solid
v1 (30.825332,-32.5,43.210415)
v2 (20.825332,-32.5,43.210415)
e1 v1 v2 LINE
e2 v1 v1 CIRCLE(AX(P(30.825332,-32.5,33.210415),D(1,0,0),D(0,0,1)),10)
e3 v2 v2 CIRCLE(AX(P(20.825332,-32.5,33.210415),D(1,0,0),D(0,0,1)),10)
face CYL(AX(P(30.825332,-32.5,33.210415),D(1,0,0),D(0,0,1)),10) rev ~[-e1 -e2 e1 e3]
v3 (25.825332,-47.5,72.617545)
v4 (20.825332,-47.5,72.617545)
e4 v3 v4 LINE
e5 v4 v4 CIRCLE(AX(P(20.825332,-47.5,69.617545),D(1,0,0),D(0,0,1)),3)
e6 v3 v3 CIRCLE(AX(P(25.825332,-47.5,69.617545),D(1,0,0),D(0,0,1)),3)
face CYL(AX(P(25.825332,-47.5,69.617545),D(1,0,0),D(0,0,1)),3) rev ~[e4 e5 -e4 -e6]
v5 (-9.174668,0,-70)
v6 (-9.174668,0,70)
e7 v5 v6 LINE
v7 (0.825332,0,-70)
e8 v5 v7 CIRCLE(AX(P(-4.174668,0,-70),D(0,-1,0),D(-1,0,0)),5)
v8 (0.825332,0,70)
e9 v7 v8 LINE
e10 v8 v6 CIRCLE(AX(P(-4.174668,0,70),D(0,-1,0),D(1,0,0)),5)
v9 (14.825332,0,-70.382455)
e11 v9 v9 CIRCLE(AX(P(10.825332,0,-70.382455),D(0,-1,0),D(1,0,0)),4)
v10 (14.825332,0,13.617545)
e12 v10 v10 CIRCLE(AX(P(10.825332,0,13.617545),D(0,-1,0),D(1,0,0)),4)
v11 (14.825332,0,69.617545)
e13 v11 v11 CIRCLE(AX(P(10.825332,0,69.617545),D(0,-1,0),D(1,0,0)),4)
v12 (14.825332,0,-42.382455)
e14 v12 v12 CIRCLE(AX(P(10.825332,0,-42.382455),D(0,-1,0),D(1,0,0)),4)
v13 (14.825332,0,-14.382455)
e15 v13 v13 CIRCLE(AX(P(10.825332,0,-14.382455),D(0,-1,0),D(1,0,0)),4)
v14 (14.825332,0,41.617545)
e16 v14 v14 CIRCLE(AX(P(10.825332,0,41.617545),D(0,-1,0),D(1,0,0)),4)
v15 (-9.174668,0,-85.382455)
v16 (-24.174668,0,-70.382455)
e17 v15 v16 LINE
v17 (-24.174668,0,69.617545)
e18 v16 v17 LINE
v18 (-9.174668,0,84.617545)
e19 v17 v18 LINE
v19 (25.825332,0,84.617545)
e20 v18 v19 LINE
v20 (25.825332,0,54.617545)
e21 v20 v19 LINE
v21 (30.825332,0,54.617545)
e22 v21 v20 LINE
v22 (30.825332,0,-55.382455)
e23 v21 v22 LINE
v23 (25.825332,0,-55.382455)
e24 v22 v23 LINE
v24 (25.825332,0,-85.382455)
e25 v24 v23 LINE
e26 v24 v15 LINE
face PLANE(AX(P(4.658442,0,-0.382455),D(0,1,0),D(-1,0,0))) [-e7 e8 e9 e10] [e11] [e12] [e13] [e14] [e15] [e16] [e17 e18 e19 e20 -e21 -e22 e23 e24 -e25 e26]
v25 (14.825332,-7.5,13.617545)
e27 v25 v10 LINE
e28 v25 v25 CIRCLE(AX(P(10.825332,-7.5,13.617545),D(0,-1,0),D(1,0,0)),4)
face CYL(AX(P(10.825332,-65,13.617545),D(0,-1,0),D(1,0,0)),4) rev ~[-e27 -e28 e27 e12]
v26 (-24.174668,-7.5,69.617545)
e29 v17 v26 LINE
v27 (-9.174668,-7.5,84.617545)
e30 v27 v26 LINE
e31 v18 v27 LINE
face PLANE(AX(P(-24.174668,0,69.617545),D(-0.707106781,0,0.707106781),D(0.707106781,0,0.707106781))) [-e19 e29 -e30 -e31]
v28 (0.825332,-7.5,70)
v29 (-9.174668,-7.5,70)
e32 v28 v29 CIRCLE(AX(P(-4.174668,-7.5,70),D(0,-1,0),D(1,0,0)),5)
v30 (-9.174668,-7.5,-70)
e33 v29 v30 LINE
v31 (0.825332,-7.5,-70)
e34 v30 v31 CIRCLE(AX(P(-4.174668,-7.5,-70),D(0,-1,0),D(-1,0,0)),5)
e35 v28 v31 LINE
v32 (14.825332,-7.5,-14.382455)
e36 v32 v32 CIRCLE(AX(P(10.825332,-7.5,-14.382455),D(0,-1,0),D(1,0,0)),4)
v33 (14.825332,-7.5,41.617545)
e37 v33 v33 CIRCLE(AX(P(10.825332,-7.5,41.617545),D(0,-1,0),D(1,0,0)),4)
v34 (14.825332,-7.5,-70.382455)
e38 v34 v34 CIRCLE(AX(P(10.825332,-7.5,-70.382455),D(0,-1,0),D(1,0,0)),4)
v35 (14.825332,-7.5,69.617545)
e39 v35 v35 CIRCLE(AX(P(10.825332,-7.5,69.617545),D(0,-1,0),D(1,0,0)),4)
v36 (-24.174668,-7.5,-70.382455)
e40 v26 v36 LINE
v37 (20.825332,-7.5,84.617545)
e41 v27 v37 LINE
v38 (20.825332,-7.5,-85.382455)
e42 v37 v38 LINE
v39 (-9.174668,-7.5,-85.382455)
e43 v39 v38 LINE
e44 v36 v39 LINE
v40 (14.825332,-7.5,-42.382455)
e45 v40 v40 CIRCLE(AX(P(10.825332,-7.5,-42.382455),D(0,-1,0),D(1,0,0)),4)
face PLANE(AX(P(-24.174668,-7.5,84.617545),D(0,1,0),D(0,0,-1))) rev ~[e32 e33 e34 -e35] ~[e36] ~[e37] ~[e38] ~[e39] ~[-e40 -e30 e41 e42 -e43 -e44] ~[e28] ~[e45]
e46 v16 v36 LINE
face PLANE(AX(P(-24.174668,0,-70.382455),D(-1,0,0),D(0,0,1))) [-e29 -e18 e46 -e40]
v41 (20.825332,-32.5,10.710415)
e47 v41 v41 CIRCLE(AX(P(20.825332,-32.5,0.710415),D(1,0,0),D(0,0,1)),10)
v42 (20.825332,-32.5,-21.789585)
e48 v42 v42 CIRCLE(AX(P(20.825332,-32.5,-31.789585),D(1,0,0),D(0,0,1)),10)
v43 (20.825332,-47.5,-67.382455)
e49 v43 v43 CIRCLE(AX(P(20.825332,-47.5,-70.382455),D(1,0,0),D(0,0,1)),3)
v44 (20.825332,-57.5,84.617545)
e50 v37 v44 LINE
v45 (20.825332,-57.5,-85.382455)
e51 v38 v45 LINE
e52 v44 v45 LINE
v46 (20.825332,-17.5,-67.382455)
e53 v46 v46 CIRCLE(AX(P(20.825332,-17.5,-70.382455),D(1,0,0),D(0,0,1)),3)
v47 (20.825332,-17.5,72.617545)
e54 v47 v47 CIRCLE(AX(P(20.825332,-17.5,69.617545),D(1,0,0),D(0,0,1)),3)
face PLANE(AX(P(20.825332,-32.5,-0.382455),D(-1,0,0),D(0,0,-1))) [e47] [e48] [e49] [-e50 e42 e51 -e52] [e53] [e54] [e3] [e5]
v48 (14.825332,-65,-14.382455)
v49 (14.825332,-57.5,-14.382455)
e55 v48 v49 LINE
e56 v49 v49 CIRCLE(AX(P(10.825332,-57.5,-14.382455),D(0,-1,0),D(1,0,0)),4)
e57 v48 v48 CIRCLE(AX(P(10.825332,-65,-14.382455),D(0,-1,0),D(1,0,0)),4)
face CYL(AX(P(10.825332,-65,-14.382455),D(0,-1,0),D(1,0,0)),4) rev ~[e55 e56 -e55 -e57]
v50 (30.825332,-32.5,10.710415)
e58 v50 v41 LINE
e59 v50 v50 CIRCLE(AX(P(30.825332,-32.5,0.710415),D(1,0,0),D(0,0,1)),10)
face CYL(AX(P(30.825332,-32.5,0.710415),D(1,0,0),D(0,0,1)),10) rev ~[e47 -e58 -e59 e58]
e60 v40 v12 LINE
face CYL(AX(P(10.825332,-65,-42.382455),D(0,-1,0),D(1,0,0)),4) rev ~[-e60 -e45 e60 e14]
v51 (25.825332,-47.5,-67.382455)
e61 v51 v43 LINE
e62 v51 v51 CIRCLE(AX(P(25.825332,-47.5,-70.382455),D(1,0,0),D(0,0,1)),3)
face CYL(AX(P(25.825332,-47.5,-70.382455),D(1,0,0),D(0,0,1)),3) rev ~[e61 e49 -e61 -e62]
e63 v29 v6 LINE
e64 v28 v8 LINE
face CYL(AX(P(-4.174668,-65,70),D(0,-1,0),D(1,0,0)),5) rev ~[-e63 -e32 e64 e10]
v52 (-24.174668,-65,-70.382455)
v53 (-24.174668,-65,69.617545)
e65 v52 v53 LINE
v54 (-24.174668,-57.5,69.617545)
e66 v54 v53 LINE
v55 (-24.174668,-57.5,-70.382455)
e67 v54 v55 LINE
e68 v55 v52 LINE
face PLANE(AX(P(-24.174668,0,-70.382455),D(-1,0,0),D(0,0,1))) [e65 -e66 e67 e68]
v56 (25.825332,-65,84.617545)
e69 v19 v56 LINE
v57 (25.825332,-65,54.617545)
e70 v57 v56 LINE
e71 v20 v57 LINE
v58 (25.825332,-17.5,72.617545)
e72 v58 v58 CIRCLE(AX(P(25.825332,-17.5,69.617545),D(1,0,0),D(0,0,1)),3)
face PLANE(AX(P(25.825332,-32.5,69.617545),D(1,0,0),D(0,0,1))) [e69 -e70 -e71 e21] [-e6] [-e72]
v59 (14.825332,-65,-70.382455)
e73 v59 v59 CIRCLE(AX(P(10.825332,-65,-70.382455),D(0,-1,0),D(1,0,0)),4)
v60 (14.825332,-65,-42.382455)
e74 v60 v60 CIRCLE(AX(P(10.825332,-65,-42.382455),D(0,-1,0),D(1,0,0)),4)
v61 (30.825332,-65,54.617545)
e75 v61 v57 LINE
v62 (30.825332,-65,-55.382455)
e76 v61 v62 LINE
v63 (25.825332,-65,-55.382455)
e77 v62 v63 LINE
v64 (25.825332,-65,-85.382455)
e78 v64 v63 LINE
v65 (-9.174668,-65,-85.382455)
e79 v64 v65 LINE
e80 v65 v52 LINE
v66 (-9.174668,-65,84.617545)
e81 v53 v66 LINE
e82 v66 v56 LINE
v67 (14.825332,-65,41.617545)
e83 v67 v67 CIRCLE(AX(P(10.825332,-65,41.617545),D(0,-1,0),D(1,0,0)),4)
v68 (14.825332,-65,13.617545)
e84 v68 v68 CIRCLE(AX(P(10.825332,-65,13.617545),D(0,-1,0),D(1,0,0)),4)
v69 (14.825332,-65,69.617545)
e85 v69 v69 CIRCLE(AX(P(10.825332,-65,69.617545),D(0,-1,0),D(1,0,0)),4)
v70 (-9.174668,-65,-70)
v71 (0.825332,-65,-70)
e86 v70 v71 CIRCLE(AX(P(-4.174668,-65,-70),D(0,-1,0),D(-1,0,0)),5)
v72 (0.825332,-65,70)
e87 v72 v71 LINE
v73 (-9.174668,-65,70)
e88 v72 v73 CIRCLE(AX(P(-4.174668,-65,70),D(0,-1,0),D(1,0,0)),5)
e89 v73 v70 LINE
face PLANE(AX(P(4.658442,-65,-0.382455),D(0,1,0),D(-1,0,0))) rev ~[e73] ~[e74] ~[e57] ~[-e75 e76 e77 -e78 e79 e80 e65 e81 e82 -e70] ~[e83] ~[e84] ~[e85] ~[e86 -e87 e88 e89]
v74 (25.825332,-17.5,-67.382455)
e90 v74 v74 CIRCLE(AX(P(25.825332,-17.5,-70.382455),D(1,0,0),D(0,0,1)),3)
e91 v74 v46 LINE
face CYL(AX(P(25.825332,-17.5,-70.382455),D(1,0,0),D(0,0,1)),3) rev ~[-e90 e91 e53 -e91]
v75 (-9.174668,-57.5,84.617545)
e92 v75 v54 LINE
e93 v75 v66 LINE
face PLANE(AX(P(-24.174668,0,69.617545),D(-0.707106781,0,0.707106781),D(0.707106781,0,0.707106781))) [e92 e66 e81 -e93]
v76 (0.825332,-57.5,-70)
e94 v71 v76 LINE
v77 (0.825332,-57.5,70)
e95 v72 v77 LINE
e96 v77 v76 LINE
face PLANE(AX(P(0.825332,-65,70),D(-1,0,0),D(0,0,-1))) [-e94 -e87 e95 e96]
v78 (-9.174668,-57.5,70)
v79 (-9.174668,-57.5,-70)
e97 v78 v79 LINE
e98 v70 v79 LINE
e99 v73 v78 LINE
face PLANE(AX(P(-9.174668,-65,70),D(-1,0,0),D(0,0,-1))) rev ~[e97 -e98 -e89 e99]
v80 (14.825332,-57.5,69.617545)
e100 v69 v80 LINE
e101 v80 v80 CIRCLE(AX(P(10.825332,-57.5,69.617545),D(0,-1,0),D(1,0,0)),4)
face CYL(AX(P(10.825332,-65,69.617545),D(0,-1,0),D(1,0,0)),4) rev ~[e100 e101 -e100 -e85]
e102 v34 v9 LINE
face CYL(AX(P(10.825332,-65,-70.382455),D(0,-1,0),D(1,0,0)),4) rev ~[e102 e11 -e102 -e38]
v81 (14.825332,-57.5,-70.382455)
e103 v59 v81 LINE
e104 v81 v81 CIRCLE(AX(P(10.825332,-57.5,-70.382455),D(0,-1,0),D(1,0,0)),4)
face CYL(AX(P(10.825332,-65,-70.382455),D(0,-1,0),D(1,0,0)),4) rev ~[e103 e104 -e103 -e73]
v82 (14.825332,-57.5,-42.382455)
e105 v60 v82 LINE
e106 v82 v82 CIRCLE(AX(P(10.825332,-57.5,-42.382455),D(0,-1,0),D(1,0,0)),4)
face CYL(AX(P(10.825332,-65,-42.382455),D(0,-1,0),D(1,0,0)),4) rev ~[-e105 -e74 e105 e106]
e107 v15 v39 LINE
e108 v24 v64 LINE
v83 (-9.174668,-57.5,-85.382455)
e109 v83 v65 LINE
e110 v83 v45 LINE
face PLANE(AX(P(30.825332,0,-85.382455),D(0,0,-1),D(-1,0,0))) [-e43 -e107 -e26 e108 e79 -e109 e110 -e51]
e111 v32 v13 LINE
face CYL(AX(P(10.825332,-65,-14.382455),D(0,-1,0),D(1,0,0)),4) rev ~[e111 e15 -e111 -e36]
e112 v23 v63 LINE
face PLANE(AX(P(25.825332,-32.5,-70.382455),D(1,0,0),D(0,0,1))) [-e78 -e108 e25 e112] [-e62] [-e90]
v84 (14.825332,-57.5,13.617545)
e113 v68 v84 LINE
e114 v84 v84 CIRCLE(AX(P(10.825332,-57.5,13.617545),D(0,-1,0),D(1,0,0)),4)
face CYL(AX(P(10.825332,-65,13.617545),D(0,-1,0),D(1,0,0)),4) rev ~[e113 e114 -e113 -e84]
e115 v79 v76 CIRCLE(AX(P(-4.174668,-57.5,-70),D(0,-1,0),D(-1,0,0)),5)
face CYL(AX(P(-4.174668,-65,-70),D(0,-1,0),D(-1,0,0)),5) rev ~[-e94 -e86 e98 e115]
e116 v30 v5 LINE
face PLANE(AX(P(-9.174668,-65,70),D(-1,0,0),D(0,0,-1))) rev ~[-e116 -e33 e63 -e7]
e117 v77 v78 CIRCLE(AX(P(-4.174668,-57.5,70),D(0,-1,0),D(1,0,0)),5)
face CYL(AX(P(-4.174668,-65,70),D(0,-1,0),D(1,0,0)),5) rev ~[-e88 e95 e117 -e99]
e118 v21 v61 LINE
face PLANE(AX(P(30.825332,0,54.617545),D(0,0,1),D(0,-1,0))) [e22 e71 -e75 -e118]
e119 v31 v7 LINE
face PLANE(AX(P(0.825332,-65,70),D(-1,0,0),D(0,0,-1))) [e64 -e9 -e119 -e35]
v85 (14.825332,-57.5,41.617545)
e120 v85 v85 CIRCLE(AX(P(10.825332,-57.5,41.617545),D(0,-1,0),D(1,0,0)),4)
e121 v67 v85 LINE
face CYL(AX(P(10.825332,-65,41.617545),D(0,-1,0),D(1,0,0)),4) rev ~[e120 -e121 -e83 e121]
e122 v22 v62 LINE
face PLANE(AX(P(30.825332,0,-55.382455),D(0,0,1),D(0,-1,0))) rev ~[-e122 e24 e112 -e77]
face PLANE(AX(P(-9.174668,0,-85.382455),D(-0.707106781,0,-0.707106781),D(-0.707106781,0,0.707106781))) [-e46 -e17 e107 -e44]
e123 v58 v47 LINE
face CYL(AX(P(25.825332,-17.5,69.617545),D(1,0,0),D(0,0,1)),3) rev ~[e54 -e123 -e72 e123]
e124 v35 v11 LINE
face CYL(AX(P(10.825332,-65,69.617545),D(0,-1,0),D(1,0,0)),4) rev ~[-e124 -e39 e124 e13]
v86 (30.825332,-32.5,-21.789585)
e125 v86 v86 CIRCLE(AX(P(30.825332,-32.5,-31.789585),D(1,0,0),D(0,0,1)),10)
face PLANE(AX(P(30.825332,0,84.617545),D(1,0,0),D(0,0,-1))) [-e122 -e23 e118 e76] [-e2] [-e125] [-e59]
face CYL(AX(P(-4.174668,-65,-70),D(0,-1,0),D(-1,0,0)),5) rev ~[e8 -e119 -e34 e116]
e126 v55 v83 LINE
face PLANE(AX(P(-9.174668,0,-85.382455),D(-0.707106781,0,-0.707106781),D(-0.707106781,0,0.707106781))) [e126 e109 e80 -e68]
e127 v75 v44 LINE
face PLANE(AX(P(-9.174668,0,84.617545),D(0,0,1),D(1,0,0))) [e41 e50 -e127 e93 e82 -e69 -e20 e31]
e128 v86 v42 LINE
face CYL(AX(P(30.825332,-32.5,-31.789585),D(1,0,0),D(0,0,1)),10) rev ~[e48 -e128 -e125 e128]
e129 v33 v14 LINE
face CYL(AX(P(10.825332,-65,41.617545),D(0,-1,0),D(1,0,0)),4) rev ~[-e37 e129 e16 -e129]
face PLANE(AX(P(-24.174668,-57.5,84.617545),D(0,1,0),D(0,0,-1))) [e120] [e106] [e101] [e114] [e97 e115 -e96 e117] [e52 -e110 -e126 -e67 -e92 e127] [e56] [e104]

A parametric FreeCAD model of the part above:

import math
import FreeCAD as App
import Part
import Sketcher

doc = App.newDocument("Part")
body = doc.addObject("PartDesign::Body", "Body")

sketch1 = body.newObject("Sketcher::SketchObject", "Sketch")
sketch1.AttachmentSupport = (doc.getObject("XZ_Plane"), [""])
sketch1.MapMode = "FlatFace"
sketch1.addGeometry([
    Part.LineSegment(App.Vector(31, 85, 0), App.Vector(-9, 85, 0)),
    Part.LineSegment(App.Vector(-9, 85, 0), App.Vector(-24, 70, 0)),
    Part.LineSegment(App.Vector(-24, 70, 0), App.Vector(-24, -70, 0)),
    Part.LineSegment(App.Vector(-24, -70, 0), App.Vector(-9, -85, 0)),
    Part.LineSegment(App.Vector(-9, -85, 0), App.Vector(31, -85, 0)),
    Part.LineSegment(App.Vector(31, -85, 0), App.Vector(31, 85, 0)),
], False)
sketch1.addConstraint([
    Sketcher.Constraint("Coincident", 0, 2, 1, 1),
    Sketcher.Constraint("Coincident", 1, 2, 2, 1),
    Sketcher.Constraint("Coincident", 2, 2, 3, 1),
    Sketcher.Constraint("Coincident", 3, 2, 4, 1),
    Sketcher.Constraint("Coincident", 4, 2, 5, 1),
    Sketcher.Constraint("Coincident", 5, 2, 0, 1),
    Sketcher.Constraint("Horizontal", 0),
    Sketcher.Constraint("Vertical", 2),
    Sketcher.Constraint("Horizontal", 4),
    Sketcher.Constraint("Vertical", 5),
    Sketcher.Constraint("Perpendicular", 1, 3),
    Sketcher.Constraint("Vertical", 0, 2, 3, 2),
    Sketcher.Constraint("Equal", 1, 3),
    Sketcher.Constraint("DistanceX", 0, 2, 0, 1, 40.0),
    Sketcher.Constraint("DistanceY", 2, 2, 2, 1, 140.0),
    Sketcher.Constraint("DistanceY", 5, 1, 5, 2, 170.0),
    Sketcher.Constraint("DistanceX", 1, 2, -1, 1, 24.174668),
    Sketcher.Constraint("DistanceY", -1, 1, 0, 2, 84.617545),
])
pad1 = body.newObject("PartDesign::Pad", "Pad")
pad1.Profile = sketch1
pad1.Length = 65

sketch2 = body.newObject("Sketcher::SketchObject", "Sketch001")
sketch2.AttachmentSupport = (doc.getObject("XZ_Plane"), [""])
sketch2.MapMode = "FlatFace"
sketch2.AttachmentOffset = App.Placement(App.Vector(0, 0, 65), App.Rotation())
sketch2.addGeometry([
    Part.ArcOfCircle(Part.Circle(App.Vector(-4, 70, 0), App.Vector(0, 0, 1), 5), math.radians(0), math.radians(180)),
    Part.LineSegment(App.Vector(-9, 70, 0), App.Vector(-9, -70, 0)),
    Part.ArcOfCircle(Part.Circle(App.Vector(-4, -70, 0), App.Vector(0, 0, 1), 5), math.radians(180), math.radians(360)),
    Part.LineSegment(App.Vector(1, -70, 0), App.Vector(1, 70, 0)),
], False)
sketch2.addConstraint([
    Sketcher.Constraint("Tangent", 0, 2, 1, 1),
    Sketcher.Constraint("Tangent", 1, 2, 2, 1),
    Sketcher.Constraint("Tangent", 2, 2, 3, 1),
    Sketcher.Constraint("Tangent", 3, 2, 0, 1),
    Sketcher.Constraint("Vertical", 1),
    Sketcher.Constraint("Vertical", 3),
    Sketcher.Constraint("Radius", 0, 5.0),
    Sketcher.Constraint("DistanceY", 1, 2, 1, 1, 140.0),
    Sketcher.Constraint("DistanceY", -1, 1, 0, 3, 70.0),
    Sketcher.Constraint("DistanceX", -1, 1, 3, 2, 0.825332),
])
pocket1 = body.newObject("PartDesign::Pocket", "Pocket")
pocket1.Profile = sketch2
pocket1.Type = "ThroughAll"

sketch3 = body.newObject("Sketcher::SketchObject", "Sketch002")
sketch3.AttachmentSupport = (doc.getObject("XZ_Plane"), [""])
sketch3.MapMode = "FlatFace"
sketch3.AttachmentOffset = App.Placement(App.Vector(0, 0, 65), App.Rotation())
sketch3.addGeometry(Part.Circle(App.Vector(10.8, 69.6, 0), App.Vector(0, 0, 1), 4), False)
sketch3.addConstraint([
    Sketcher.Constraint("Diameter", 0, 8.0),
    Sketcher.Constraint("DistanceX", -1, 1, 0, 3, 10.825332),
    Sketcher.Constraint("DistanceY", -1, 1, 0, 3, 69.617545),
])
pocket2 = body.newObject("PartDesign::Pocket", "Pocket001")
pocket2.Profile = sketch3
pocket2.Type = "ThroughAll"
doc.recompute()

linearpattern = body.newObject("PartDesign::LinearPattern", "LinearPattern")
linearpattern.Originals = [pocket2]
linearpattern.Direction = (doc.getObject("Z_Axis"), [""])
linearpattern.Mode = "offset"
linearpattern.Offset = 28
linearpattern.Occurrences = 6
linearpattern.Reversed = True
body.Tip = linearpattern

sketch4 = body.newObject("Sketcher::SketchObject", "Sketch003")
sketch4.AttachmentSupport = (doc.getObject("YZ_Plane"), [""])
sketch4.MapMode = "FlatFace"
sketch4.AttachmentOffset = App.Placement(App.Vector(0, 0, -24.174668), App.Rotation())
sketch4.addGeometry([
    Part.LineSegment(App.Vector(-58, 85, 0), App.Vector(-8, 85, 0)),
    Part.LineSegment(App.Vector(-8, 85, 0), App.Vector(-8, -85, 0)),
    Part.LineSegment(App.Vector(-8, -85, 0), App.Vector(-58, -85, 0)),
    Part.LineSegment(App.Vector(-58, -85, 0), App.Vector(-58, 85, 0)),
], False)
sketch4.addConstraint([
    Sketcher.Constraint("Coincident", 0, 2, 1, 1),
    Sketcher.Constraint("Coincident", 1, 2, 2, 1),
    Sketcher.Constraint("Coincident", 2, 2, 3, 1),
    Sketcher.Constraint("Coincident", 3, 2, 0, 1),
    Sketcher.Constraint("Horizontal", 0),
    Sketcher.Constraint("Vertical", 1),
    Sketcher.Constraint("Horizontal", 2),
    Sketcher.Constraint("Vertical", 3),
    Sketcher.Constraint("DistanceX", 0, 1, 0, 2, 50.0),
    Sketcher.Constraint("DistanceY", 1, 2, 1, 1, 170.0),
    Sketcher.Constraint("DistanceX", 0, 2, -1, 1, 7.5),
    Sketcher.Constraint("DistanceY", -1, 1, 0, 2, 84.617545),
])
pocket3 = body.newObject("PartDesign::Pocket", "Pocket002")
pocket3.Profile = sketch4
pocket3.Length = 45
pocket3.Reversed = True

sketch5 = body.newObject("Sketcher::SketchObject", "Sketch004")
sketch5.AttachmentSupport = (doc.getObject("YZ_Plane"), [""])
sketch5.MapMode = "FlatFace"
sketch5.AttachmentOffset = App.Placement(App.Vector(0, 0, 30.825332), App.Rotation())
sketch5.addGeometry([
    Part.LineSegment(App.Vector(-65, -85, 0), App.Vector(0, -85, 0)),
    Part.LineSegment(App.Vector(0, -85, 0), App.Vector(0, -55, 0)),
    Part.LineSegment(App.Vector(0, -55, 0), App.Vector(-65, -55, 0)),
    Part.LineSegment(App.Vector(-65, -55, 0), App.Vector(-65, -85, 0)),
    Part.LineSegment(App.Vector(-65, 55, 0), App.Vector(0, 55, 0)),
    Part.LineSegment(App.Vector(0, 55, 0), App.Vector(0, 85, 0)),
    Part.LineSegment(App.Vector(0, 85, 0), App.Vector(-65, 85, 0)),
    Part.LineSegment(App.Vector(-65, 85, 0), App.Vector(-65, 55, 0)),
], False)
sketch5.addConstraint([
    Sketcher.Constraint("Coincident", 0, 2, 1, 1),
    Sketcher.Constraint("Coincident", 1, 2, 2, 1),
    Sketcher.Constraint("Coincident", 2, 2, 3, 1),
    Sketcher.Constraint("Coincident", 3, 2, 0, 1),
    Sketcher.Constraint("Coincident", 4, 2, 5, 1),
    Sketcher.Constraint("Coincident", 5, 2, 6, 1),
    Sketcher.Constraint("Coincident", 6, 2, 7, 1),
    Sketcher.Constraint("Coincident", 7, 2, 4, 1),
    Sketcher.Constraint("Horizontal", 0),
    Sketcher.Constraint("Vertical", 1),
    Sketcher.Constraint("Horizontal", 2),
    Sketcher.Constraint("Vertical", 3),
    Sketcher.Constraint("Horizontal", 4),
    Sketcher.Constraint("Vertical", 5),
    Sketcher.Constraint("Horizontal", 6),
    Sketcher.Constraint("Vertical", 7),
    Sketcher.Constraint("PointOnObject", 0, 2, -2),
    Sketcher.Constraint("PointOnObject", 4, 2, -2),
    Sketcher.Constraint("Vertical", 3, 2, 6, 2),
    Sketcher.Constraint("Equal", 3, 5),
    Sketcher.Constraint("DistanceX", 0, 1, 0, 2, 65.0),
    Sketcher.Constraint("DistanceY", 1, 1, 1, 2, 30.0),
    Sketcher.Constraint("DistanceY", 1, 2, 4, 2, 110.0),
    Sketcher.Constraint("DistanceY", 0, 2, -1, 1, 85.382455),
])
pocket4 = body.newObject("PartDesign::Pocket", "Pocket003")
pocket4.Profile = sketch5
pocket4.Length = 5

sketch6 = body.newObject("Sketcher::SketchObject", "Sketch005")
sketch6.AttachmentSupport = (doc.getObject("YZ_Plane"), [""])
sketch6.MapMode = "FlatFace"
sketch6.AttachmentOffset = App.Placement(App.Vector(0, 0, 25.825332), App.Rotation())
sketch6.addGeometry([
    Part.Circle(App.Vector(-17.5, -70.4, 0), App.Vector(0, 0, 1), 3),
    Part.Circle(App.Vector(-47.5, -70.4, 0), App.Vector(0, 0, 1), 3),
    Part.Circle(App.Vector(-47.5, 69.6, 0), App.Vector(0, 0, 1), 3),
    Part.Circle(App.Vector(-17.5, 69.6, 0), App.Vector(0, 0, 1), 3),
], False)
sketch6.addConstraint([
    Sketcher.Constraint("Equal", 0, 1),
    Sketcher.Constraint("Equal", 1, 2),
    Sketcher.Constraint("Equal", 2, 3),
    Sketcher.Constraint("Horizontal", 0, 3, 1, 3),
    Sketcher.Constraint("Horizontal", 2, 3, 3, 3),
    Sketcher.Constraint("Vertical", 1, 3, 2, 3),
    Sketcher.Constraint("Vertical", 0, 3, 3, 3),
    Sketcher.Constraint("Diameter", 0, 6.0),
    Sketcher.Constraint("DistanceX", 1, 3, 0, 3, 30.0),
    Sketcher.Constraint("DistanceY", 1, 3, 2, 3, 140.0),
    Sketcher.Constraint("DistanceX", 0, 3, -1, 1, 17.5),
    Sketcher.Constraint("DistanceY", 0, 3, -1, 1, 70.382455),
])
pocket5 = body.newObject("PartDesign::Pocket", "Pocket004")
pocket5.Profile = sketch6
pocket5.Type = "ThroughAll"

sketch7 = body.newObject("Sketcher::SketchObject", "Sketch006")
sketch7.AttachmentSupport = (doc.getObject("YZ_Plane"), [""])
sketch7.MapMode = "FlatFace"
sketch7.AttachmentOffset = App.Placement(App.Vector(0, 0, 30.825332), App.Rotation())
sketch7.addGeometry(Part.Circle(App.Vector(-32, -32, 0), App.Vector(0, 0, 1), 10), False)
sketch7.addConstraint([
    Sketcher.Constraint("Diameter", 0, 20.0),
    Sketcher.Constraint("DistanceX", 0, 3, -1, 1, 32.5),
    Sketcher.Constraint("DistanceY", 0, 3, -1, 1, 31.789585),
])
pocket6 = body.newObject("PartDesign::Pocket", "Pocket005")
pocket6.Profile = sketch7
pocket6.Type = "ThroughAll"
doc.recompute()

linearpattern2 = body.newObject("PartDesign::LinearPattern", "LinearPattern001")
linearpattern2.Originals = [pocket6]
linearpattern2.Direction = (doc.getObject("Z_Axis"), [""])
linearpattern2.Mode = "offset"
linearpattern2.Offset = 32.5
linearpattern2.Occurrences = 3
body.Tip = linearpattern2

doc.recompute()
